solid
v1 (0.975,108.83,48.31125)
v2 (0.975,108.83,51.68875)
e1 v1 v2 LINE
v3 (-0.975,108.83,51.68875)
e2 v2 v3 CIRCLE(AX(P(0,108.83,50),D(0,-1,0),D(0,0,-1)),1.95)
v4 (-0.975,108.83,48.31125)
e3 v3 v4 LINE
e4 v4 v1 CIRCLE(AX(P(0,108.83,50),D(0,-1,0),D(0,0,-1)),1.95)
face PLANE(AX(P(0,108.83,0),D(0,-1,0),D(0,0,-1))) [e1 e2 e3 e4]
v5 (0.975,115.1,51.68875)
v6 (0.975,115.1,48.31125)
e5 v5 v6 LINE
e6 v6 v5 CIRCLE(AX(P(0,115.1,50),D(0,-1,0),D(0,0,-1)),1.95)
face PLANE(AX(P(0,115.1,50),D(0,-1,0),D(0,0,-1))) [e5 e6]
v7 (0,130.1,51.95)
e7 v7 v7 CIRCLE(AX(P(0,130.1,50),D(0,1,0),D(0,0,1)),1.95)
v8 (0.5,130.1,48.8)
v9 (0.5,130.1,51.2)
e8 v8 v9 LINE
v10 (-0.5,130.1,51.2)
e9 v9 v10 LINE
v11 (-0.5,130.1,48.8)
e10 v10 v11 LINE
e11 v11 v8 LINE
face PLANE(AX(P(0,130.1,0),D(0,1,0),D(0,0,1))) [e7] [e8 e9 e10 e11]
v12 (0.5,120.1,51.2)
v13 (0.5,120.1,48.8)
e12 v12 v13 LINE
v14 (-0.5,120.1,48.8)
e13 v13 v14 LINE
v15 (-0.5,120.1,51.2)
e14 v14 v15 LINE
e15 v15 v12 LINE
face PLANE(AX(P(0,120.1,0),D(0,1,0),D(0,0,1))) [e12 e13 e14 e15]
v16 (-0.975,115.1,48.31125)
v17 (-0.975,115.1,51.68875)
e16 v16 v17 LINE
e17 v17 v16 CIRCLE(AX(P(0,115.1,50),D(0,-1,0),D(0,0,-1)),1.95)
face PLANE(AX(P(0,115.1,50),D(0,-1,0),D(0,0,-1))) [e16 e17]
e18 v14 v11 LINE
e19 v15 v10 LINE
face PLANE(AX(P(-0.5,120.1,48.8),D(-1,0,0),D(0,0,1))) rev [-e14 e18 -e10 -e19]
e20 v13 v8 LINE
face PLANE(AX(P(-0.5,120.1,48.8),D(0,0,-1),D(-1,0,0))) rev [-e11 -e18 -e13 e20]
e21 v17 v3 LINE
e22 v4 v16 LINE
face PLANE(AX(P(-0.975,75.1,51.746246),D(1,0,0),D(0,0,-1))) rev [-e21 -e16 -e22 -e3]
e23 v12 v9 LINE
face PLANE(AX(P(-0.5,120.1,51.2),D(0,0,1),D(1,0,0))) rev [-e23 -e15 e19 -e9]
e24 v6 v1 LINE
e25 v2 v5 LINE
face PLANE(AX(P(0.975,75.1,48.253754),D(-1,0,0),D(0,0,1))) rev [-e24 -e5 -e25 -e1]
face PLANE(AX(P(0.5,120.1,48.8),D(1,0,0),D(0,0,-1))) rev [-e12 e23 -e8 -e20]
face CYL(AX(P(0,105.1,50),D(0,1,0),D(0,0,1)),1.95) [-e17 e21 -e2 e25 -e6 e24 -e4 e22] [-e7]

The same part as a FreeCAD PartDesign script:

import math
import FreeCAD as App
import Part
import Sketcher
from FreeCAD import Vector
Q = App.Units.Quantity


def edges_at(feature, points):
    """Names of the edges that pass closest to the given points."""
    edges = feature.Shape.Edges
    near = lambda p: min(range(len(edges)), key=lambda i: edges[i].distToShape(Part.Vertex(*p))[0])
    return sorted({f"Edge{near(p) + 1}" for p in points})


def add_polygon(sketch, points):
    """Adds a closed chain of lines whose ends are joined by coincident constraints."""
    first, n = sketch.GeometryCount, len(points)
    for a, b in zip(points, points[1:] + points[:1]):
        sketch.addGeometry(Part.LineSegment(App.Vector(*a, 0), App.Vector(*b, 0)), False)
    for i in range(n):
        sketch.addConstraint(Sketcher.Constraint("Coincident", first + i, 2, first + (i + 1) % n, 1))

doc = App.newDocument("Part")
body = doc.addObject("PartDesign::Body", "Body")

# Sketch on XZ plane
sketch1 = body.newObject("Sketcher::SketchObject", "Sketch")
sketch1.AttachmentSupport = (doc.getObject("XZ_Plane"), [""])
sketch1.MapMode = "FlatFace"
sketch1.addGeometry(Part.Circle(Vector(0, 0, 0), Vector(0, 0, 1), 30), False)
sketch1.addConstraint([
    Sketcher.Constraint("Coincident", 0, 3, -1, 1),
    Sketcher.Constraint("Diameter", 0, Q("60 mm")),
])
pad1 = body.newObject("PartDesign::Pad", "Pad")
pad1.Profile = sketch1
pad1.Length = 200
pad1.Reversed = True

# Sketch on XZ plane
sketch2 = body.newObject("Sketcher::SketchObject", "Sketch001")
sketch2.AttachmentSupport = (doc.getObject("XZ_Plane"), [""])
sketch2.MapMode = "FlatFace"
sketch2.AttachmentOffset = App.Placement(Vector(0, 0, -200), App.Rotation())
sketch2.addGeometry(Part.Circle(Vector(0, 0, 0), Vector(0, 0, 1), 30), False)
sketch2.addConstraint([
    Sketcher.Constraint("Coincident", 0, 3, -1, 1),
    Sketcher.Constraint("Diameter", 0, Q("60 mm")),
])
pocket1 = body.newObject("PartDesign::Pocket", "Pocket")
pocket1.Profile = sketch2
pocket1.Length = 200
pocket1.Reversed = True
body2 = doc.addObject("PartDesign::Body", "Body001")
body2.AllowCompound = True

# Sketch on XZ plane
sketch3 = body2.newObject("Sketcher::SketchObject", "Sketch002")
sketch3.AttachmentSupport = (doc.getObject("XZ_Plane001"), [""])
sketch3.MapMode = "FlatFace"
sketch3.AttachmentOffset = App.Placement(Vector(0, 0, -140), App.Rotation())
sketch3.addGeometry(Part.Circle(Vector(0, 50, 0), Vector(0, 0, 1), 4), False)
sketch3.addConstraint([
    Sketcher.Constraint("PointOnObject", 0, 3, -2),
    Sketcher.Constraint("Diameter", 0, Q("8 mm")),
    Sketcher.Constraint("DistanceY", -1, 1, 0, 3, Q("50 mm")),
])
pad2 = body2.newObject("PartDesign::Pad", "Pad001")
pad2.Profile = sketch3
pad2.Length = 80

# Sketch on XZ plane
sketch4 = body2.newObject("Sketcher::SketchObject", "Sketch003")
sketch4.AttachmentSupport = (doc.getObject("XZ_Plane001"), [""])
sketch4.MapMode = "FlatFace"
sketch4.AttachmentOffset = App.Placement(Vector(0, 0, -140), App.Rotation())
sketch4.addGeometry([
    Part.LineSegment(Vector(40.9, 0, 0), Vector(-2.9, 47.3, 0)),  # 0
    Part.ArcOfCircle(Part.Circle(Vector(0, 50, 0), Vector(0, 0, 1), 4), math.radians(-137), math.radians(43)),  # 1
    Part.LineSegment(Vector(2.9, 52.7, 0), Vector(51.8, 0, 0)),  # 2
    Part.LineSegment(Vector(51.8, 0, 0), Vector(11.9, -43.1, 0)),  # 3
    Part.LineSegment(Vector(11.9, -43.1, 0), Vector(6, -37.6, 0)),  # 4
    Part.LineSegment(Vector(6, -37.6, 0), Vector(40.9, 0, 0)),  # 5
], False)
sketch4.addConstraint([
    Sketcher.Constraint("Tangent", 0, 2, 1, 1),
    Sketcher.Constraint("Tangent", 1, 2, 2, 1),
    Sketcher.Constraint("Coincident", 2, 2, 3, 1),
    Sketcher.Constraint("Coincident", 3, 2, 4, 1),
    Sketcher.Constraint("Coincident", 4, 2, 5, 1),
    Sketcher.Constraint("Coincident", 5, 2, 0, 1),
    Sketcher.Constraint("PointOnObject", 1, 3, -2),
    Sketcher.Constraint("PointOnObject", 2, 2, -1),
    Sketcher.Constraint("PointOnObject", 5, 2, -1),
    Sketcher.Constraint("Parallel", 0, 2),
    Sketcher.Constraint("Perpendicular", 3, 4),
    Sketcher.Constraint("Perpendicular", 4, 5),
    Sketcher.Constraint("Radius", 1, Q("4 mm")),
    Sketcher.Constraint("Distance", 4, Q("8 mm")),
    Sketcher.Constraint("DistanceY", -1, 1, 1, 3, Q("50 mm")),
    Sketcher.Constraint("DistanceX", -1, 1, 4, 2, Q("6 mm")),
    Sketcher.Constraint("DistanceY", -1, 1, 0, 2, Q("47.28 mm")),
])
pad3 = body2.newObject("PartDesign::Pad", "Pad002")
pad3.Profile = sketch4
pad3.Length = 10

# Sketch on XZ plane
sketch5 = body2.newObject("Sketcher::SketchObject", "Sketch004")
sketch5.AttachmentSupport = (doc.getObject("XZ_Plane001"), [""])
sketch5.MapMode = "FlatFace"
sketch5.AttachmentOffset = App.Placement(Vector(0, 0, -60), App.Rotation())
sketch5.addGeometry([
    Part.LineSegment(Vector(6, -37.6, 0), Vector(11.9, -43.1, 0)),  # 0
    Part.LineSegment(Vector(11.9, -43.1, 0), Vector(51.8, 0, 0)),  # 1
    Part.LineSegment(Vector(51.8, 0, 0), Vector(2.9, 52.7, 0)),  # 2
    Part.ArcOfCircle(Part.Circle(Vector(0, 50, 0), Vector(0, 0, 1), 4), math.radians(-137), math.radians(43)),  # 3
    Part.LineSegment(Vector(-2.9, 47.3, 0), Vector(40.9, 0, 0)),  # 4
    Part.LineSegment(Vector(40.9, 0, 0), Vector(6, -37.6, 0)),  # 5
], False)
sketch5.addConstraint([
    Sketcher.Constraint("Coincident", 0, 2, 1, 1),
    Sketcher.Constraint("Coincident", 1, 2, 2, 1),
    Sketcher.Constraint("Tangent", 2, 2, 3, 2),
    Sketcher.Constraint("Tangent", 3, 1, 4, 1),
    Sketcher.Constraint("Coincident", 4, 2, 5, 1),
    Sketcher.Constraint("Coincident", 5, 2, 0, 1),
    Sketcher.Constraint("PointOnObject", 3, 3, -2),
    Sketcher.Constraint("PointOnObject", 1, 2, -1),
    Sketcher.Constraint("PointOnObject", 4, 2, -1),
    Sketcher.Constraint("Perpendicular", 0, 1),
    Sketcher.Constraint("Parallel", 2, 4),
    Sketcher.Constraint("Parallel", 1, 5),
    Sketcher.Constraint("Radius", 3, Q("4 mm")),
    Sketcher.Constraint("Distance", 0, Q("8 mm")),
    Sketcher.Constraint("DistanceY", -1, 1, 3, 3, Q("50 mm")),
    Sketcher.Constraint("DistanceX", -1, 1, 5, 2, Q("6 mm")),
    Sketcher.Constraint("DistanceY", -1, 1, 2, 2, Q("52.72 mm")),
])
pad4 = body2.newObject("PartDesign::Pad", "Pad003")
pad4.Profile = sketch5
pad4.Length = 10
pad4.Reversed = True
doc.recompute()

fillet = body2.newObject("PartDesign::Fillet", "Fillet")
fillet.Base = (pad4, edges_at(pad4, [
    (40.916, 65, 0),
    (51.827, 65, 0),
    (40.916, 135, 0),
    (51.827, 135, 0),
]))
fillet.Radius = 10
doc.recompute()

fillet2 = body2.newObject("PartDesign::Fillet", "Fillet001")
fillet2.Base = (fillet, edges_at(fillet, [
    (8.933, 140, -40.368),
    (6, 65, -37.648),
    (8.933, 70, -40.368),
    (11.866, 65, -43.088),
    (8.933, 60, -40.368),
    (8.933, 130, -40.368),
    (6, 135, -37.648),
    (11.866, 135, -43.088),
]))
fillet2.Radius = 3

# Sketch on XZ plane
sketch6 = body2.newObject("Sketcher::SketchObject", "Sketch005")
sketch6.AttachmentSupport = (doc.getObject("XZ_Plane001"), [""])
sketch6.MapMode = "FlatFace"
sketch6.AttachmentOffset = App.Placement(Vector(0, 0, -106), App.Rotation())
sketch6.addGeometry(Part.Circle(Vector(0, 50, 0), Vector(0, 0, 1), 4), False)
sketch6.addConstraint([
    Sketcher.Constraint("PointOnObject", 0, 3, -2),
    Sketcher.Constraint("Diameter", 0, Q("8 mm")),
    Sketcher.Constraint("DistanceY", -1, 1, 0, 3, Q("50 mm")),
])
pocket2 = body2.newObject("PartDesign::Pocket", "Pocket001")
pocket2.Profile = sketch6
pocket2.Length = 12
pocket2.Reversed = True

# Sketch on XZ plane
sketch7 = body2.newObject("Sketcher::SketchObject", "Sketch006")
sketch7.AttachmentSupport = (doc.getObject("XZ_Plane001"), [""])
sketch7.MapMode = "FlatFace"
sketch7.AttachmentOffset = App.Placement(Vector(0, 0, -140), App.Rotation())
sketch7.addGeometry(Part.Circle(Vector(0, 50, 0), Vector(0, 0, 1), 2), False)
sketch7.addConstraint([
    Sketcher.Constraint("PointOnObject", 0, 3, -2),
    Sketcher.Constraint("Diameter", 0, Q("4 mm")),
    Sketcher.Constraint("DistanceY", -1, 1, 0, 3, Q("50 mm")),
])
pocket3 = body2.newObject("PartDesign::Pocket", "Pocket002")
pocket3.Profile = sketch7
pocket3.Length = 70
pocket3.Reversed = True

# Sketch on XZ plane
sketch8 = body2.newObject("Sketcher::SketchObject", "Sketch007")
sketch8.AttachmentSupport = (doc.getObject("XZ_Plane001"), [""])
sketch8.MapMode = "FlatFace"
sketch8.AttachmentOffset = App.Placement(Vector(0, 0, -140.1), App.Rotation())
sketch8.addGeometry(Part.Circle(Vector(0, 50, 0), Vector(0, 0, 1), 2), False)
sketch8.addConstraint([
    Sketcher.Constraint("PointOnObject", 0, 3, -2),
    Sketcher.Constraint("Diameter", 0, Q("4 mm")),
    Sketcher.Constraint("DistanceY", -1, 1, 0, 3, Q("50 mm")),
])
pad5 = body2.newObject("PartDesign::Pad", "Pad004")
pad5.Profile = sketch8
pad5.Length = 70

# Sketch on XZ plane
sketch9 = body2.newObject("Sketcher::SketchObject", "Sketch008")
sketch9.AttachmentSupport = (doc.getObject("XZ_Plane001"), [""])
sketch9.MapMode = "FlatFace"
sketch9.AttachmentOffset = App.Placement(Vector(0, 0, -110.1), App.Rotation())
sketch9.addGeometry([
    Part.LineSegment(Vector(-1, 51.7, 0), Vector(-1, 48.3, 0)),
    Part.ArcOfCircle(Part.Circle(Vector(0, 50, 0), Vector(0, 0, 1), 2), math.radians(119), math.radians(241)),
    Part.LineSegment(Vector(1, 48.3, 0), Vector(1, 51.7, 0)),
    Part.ArcOfCircle(Part.Circle(Vector(0, 50, 0), Vector(0, 0, 1), 2), math.radians(-61), math.radians(61)),
], False)
sketch9.addConstraint([
    Sketcher.Constraint("Coincident", 0, 1, 1, 1),
    Sketcher.Constraint("Coincident", 1, 2, 0, 2),
    Sketcher.Constraint("Coincident", 2, 1, 3, 1),
    Sketcher.Constraint("Coincident", 3, 2, 2, 2),
    Sketcher.Constraint("Vertical", 0),
    Sketcher.Constraint("Vertical", 2),
    Sketcher.Constraint("Coincident", 3, 3, 1, 3),
    Sketcher.Constraint("Equal", 1, 3),
    Sketcher.Constraint("Symmetric", 1, 2, 2, 1, -2),
    Sketcher.Constraint("Radius", 1, Q("2 mm")),
    Sketcher.Constraint("DistanceY", -1, 1, 1, 3, Q("50 mm")),
    Sketcher.Constraint("DistanceX", 1, 2, 2, 1, Q("1.95 mm")),
])
pocket4 = body2.newObject("PartDesign::Pocket", "Pocket003")
pocket4.Profile = sketch9
pocket4.Length = 35
pocket4.Reversed = True

# Sketch on XZ plane
sketch10 = body2.newObject("Sketcher::SketchObject", "Sketch009")
sketch10.AttachmentSupport = (doc.getObject("XZ_Plane001"), [""])
sketch10.MapMode = "FlatFace"
sketch10.AttachmentOffset = App.Placement(Vector(0, 0, -140.1), App.Rotation())
add_polygon(sketch10, [(-0.5, 48.8), (-0.5, 51.2), (0.5, 51.2), (0.5, 48.8)])  # lines 0-3
sketch10.addConstraint([
    Sketcher.Constraint("Vertical", 0),
    Sketcher.Constraint("Horizontal", 1),
    Sketcher.Constraint("Vertical", 2),
    Sketcher.Constraint("Horizontal", 3),
    Sketcher.Constraint("DistanceX", 1, 1, 1, 2, Q("1 mm")),
    Sketcher.Constraint("DistanceY", 0, 1, 0, 2, Q("2.4 mm")),
    Sketcher.Constraint("DistanceX", 0, 2, -1, 1, Q("0.5 mm")),
    Sketcher.Constraint("DistanceY", -1, 1, 0, 2, Q("51.2 mm")),
])
pocket5 = body2.newObject("PartDesign::Pocket", "Pocket004")
pocket5.Profile = sketch10
pocket5.Length = 20
pocket5.Reversed = True

# Sketch on XZ plane
sketch11 = body2.newObject("Sketcher::SketchObject", "Sketch010")
sketch11.AttachmentSupport = (doc.getObject("XZ_Plane001"), [""])
sketch11.MapMode = "FlatFace"
sketch11.AttachmentOffset = App.Placement(Vector(0, 0, -140), App.Rotation())
sketch11.addGeometry([
    Part.Circle(Vector(0, 50, 0), Vector(0, 0, 1), 97.7),
    Part.Circle(Vector(0, 50, 0), Vector(0, 0, 1), 2),
], False)
sketch11.addConstraint([
    Sketcher.Constraint("Coincident", 1, 3, 0, 3),
    Sketcher.Constraint("PointOnObject", 0, 3, -2),
    Sketcher.Constraint("Diameter", 1, Q("4 mm")),
    Sketcher.Constraint("DistanceY", -1, 1, 0, 3, Q("50 mm")),
    Sketcher.Constraint("Diameter", 0, Q("195.379171 mm")),
])
pocket6 = body2.newObject("PartDesign::Pocket", "Pocket005")
pocket6.Profile = sketch11
pocket6.Length = 200
pocket6.Reversed = True

# Sketch on YZ plane
sketch12 = body2.newObject("Sketcher::SketchObject", "Sketch011")
sketch12.AttachmentSupport = (doc.getObject("YZ_Plane001"), [""])
sketch12.MapMode = "FlatFace"
sketch12.AttachmentOffset = App.Placement(Vector(0, 0, 0.975), App.Rotation())
add_polygon(sketch12, [(70, 52), (58, 52), (58, 47), (70, 47)])  # lines 0-3
sketch12.addConstraint([
    Sketcher.Constraint("Horizontal", 0),
    Sketcher.Constraint("Vertical", 1),
    Sketcher.Constraint("Horizontal", 2),
    Sketcher.Constraint("Vertical", 3),
    Sketcher.Constraint("DistanceY", -1, 1, 0, 2, Q("52 mm")),
    Sketcher.Constraint("DistanceX", -1, 1, 2, 2, Q("70 mm")),
    Sketcher.Constraint("DistanceX", 0, 2, 0, 1, Q("11.52545 mm")),
    Sketcher.Constraint("DistanceY", 1, 2, 1, 1, Q("5.149469 mm")),
])
pocket7 = body2.newObject("PartDesign::Pocket", "Pocket006")
pocket7.Profile = sketch12
pocket7.Type = "ThroughAll"
pocket7.Midplane = True

# Sketch on YZ plane
sketch13 = body2.newObject("Sketcher::SketchObject", "Sketch012")
sketch13.AttachmentSupport = (doc.getObject("YZ_Plane001"), [""])
sketch13.MapMode = "FlatFace"
sketch13.AttachmentOffset = App.Placement(Vector(0, 0, -0.975), App.Rotation())
add_polygon(sketch13, [(75.1, 48), (70.1, 48), (70.1, 52), (75.1, 52)])  # lines 0-3
sketch13.addConstraint([
    Sketcher.Constraint("Horizontal", 0),
    Sketcher.Constraint("Vertical", 1),
    Sketcher.Constraint("Horizontal", 2),
    Sketcher.Constraint("Vertical", 3),
    Sketcher.Constraint("DistanceX", 0, 2, 0, 1, Q("5 mm")),
    Sketcher.Constraint("DistanceY", 1, 1, 1, 2, Q("4 mm")),
    Sketcher.Constraint("DistanceY", -1, 1, 0, 2, Q("48 mm")),
    Sketcher.Constraint("DistanceX", -1, 1, 0, 2, Q("70.1 mm")),
])
pocket8 = body2.newObject("PartDesign::Pocket", "Pocket007")
pocket8.Profile = sketch13
pocket8.Type = "ThroughAll"
pocket8.Midplane = True

# Sketch on XZ plane
sketch14 = body2.newObject("Sketcher::SketchObject", "Sketch013")
sketch14.AttachmentSupport = (doc.getObject("XZ_Plane001"), [""])
sketch14.MapMode = "FlatFace"
sketch14.AttachmentOffset = App.Placement(Vector(0, 0, -140.1), App.Rotation())
add_polygon(sketch14, [(-6, 41), (-6, 54), (2, 54), (2, 41)])  # lines 0-3
sketch14.addConstraint([
    Sketcher.Constraint("Vertical", 0),
    Sketcher.Constraint("Horizontal", 1),
    Sketcher.Constraint("Vertical", 2),
    Sketcher.Constraint("Horizontal", 3),
    Sketcher.Constraint("DistanceX", -1, 1, 1, 2, Q("2.325498 mm")),
    Sketcher.Constraint("DistanceX", 1, 1, 1, 2, Q("8.073982 mm")),
    Sketcher.Constraint("DistanceY", 0, 1, 0, 2, Q("13.216207 mm")),
    Sketcher.Constraint("DistanceY", -1, 1, 0, 2, Q("54.072603 mm")),
])
pocket9 = body2.newObject("PartDesign::Pocket", "Pocket008")
pocket9.Profile = sketch14
pocket9.Length = 7
pocket9.Reversed = True

# Sketch on XZ plane
sketch15 = body2.newObject("Sketcher::SketchObject", "Sketch014")
sketch15.AttachmentSupport = (doc.getObject("XZ_Plane001"), [""])
sketch15.MapMode = "FlatFace"
sketch15.AttachmentOffset = App.Placement(Vector(0, 0, -133.1), App.Rotation())
add_polygon(sketch15, [(-7, 42), (-7, 59), (10, 59), (10, 42)])  # lines 0-3
sketch15.addConstraint([
    Sketcher.Constraint("Vertical", 0),
    Sketcher.Constraint("Horizontal", 1),
    Sketcher.Constraint("Vertical", 2),
    Sketcher.Constraint("Horizontal", 3),
    Sketcher.Constraint("DistanceX", 1, 1, 1, 2, Q("16.909253 mm")),
    Sketcher.Constraint("DistanceY", 0, 1, 0, 2, Q("17.799093 mm")),
    Sketcher.Constraint("DistanceX", -1, 1, 1, 2, Q("9.812548 mm")),
    Sketcher.Constraint("DistanceY", -1, 1, 2, 2, Q("41.644322 mm")),
])
pocket10 = body2.newObject("PartDesign::Pocket", "Pocket009")
pocket10.Profile = sketch15
pocket10.Length = 3
pocket10.Reversed = True

# Sketch on XZ plane
sketch16 = body2.newObject("Sketcher::SketchObject", "Sketch015")
sketch16.AttachmentSupport = (doc.getObject("XZ_Plane001"), [""])
sketch16.MapMode = "FlatFace"
sketch16.AttachmentOffset = App.Placement(Vector(0, 0, -75.1), App.Rotation())
add_polygon(sketch16, [(-11, 61), (-11, 44), (7, 44), (7, 61)])  # lines 0-3
sketch16.addConstraint([
    Sketcher.Constraint("Vertical", 0),
    Sketcher.Constraint("Horizontal", 1),
    Sketcher.Constraint("Vertical", 2),
    Sketcher.Constraint("Horizontal", 3),
    Sketcher.Constraint("DistanceX", 1, 1, 1, 2, Q("18.708797 mm")),
    Sketcher.Constraint("DistanceY", 0, 2, 0, 1, Q("16.020174 mm")),
    Sketcher.Constraint("DistanceX", 0, 2, -1, 1, Q("11.380984 mm")),
    Sketcher.Constraint("DistanceY", -1, 1, 0, 2, Q("44.493228 mm")),
])
pocket11 = body2.newObject("PartDesign::Pocket", "Pocket010")
pocket11.Profile = sketch16
pocket11.Length = 3

# Sketch on XZ plane
sketch17 = body2.newObject("Sketcher::SketchObject", "Sketch016")
sketch17.AttachmentSupport = (doc.getObject("XZ_Plane001"), [""])
sketch17.MapMode = "FlatFace"
sketch17.AttachmentOffset = App.Placement(Vector(0, 0, -78.1), App.Rotation())
add_polygon(sketch17, [(-4, 53), (-4, 47), (4, 47), (4, 53)])  # lines 0-3
sketch17.addConstraint([
    Sketcher.Constraint("Vertical", 0),
    Sketcher.Constraint("Horizontal", 1),
    Sketcher.Constraint("Vertical", 2),
    Sketcher.Constraint("Horizontal", 3),
    Sketcher.Constraint("DistanceX", 1, 1, 1, 2, Q("8.604904 mm")),
    Sketcher.Constraint("DistanceY", 0, 2, 0, 1, Q("5.934872 mm")),
    Sketcher.Constraint("DistanceX", 0, 2, -1, 1, Q("4.242971 mm")),
    Sketcher.Constraint("DistanceY", -1, 1, 2, 2, Q("53.20536 mm")),
])
pocket12 = body2.newObject("PartDesign::Pocket", "Pocket011")
pocket12.Profile = sketch17
pocket12.Length = 30.73

# Sketch on XZ plane
sketch18 = body2.newObject("Sketcher::SketchObject", "Sketch017")
sketch18.AttachmentSupport = (doc.getObject("XZ_Plane001"), [""])
sketch18.MapMode = "FlatFace"
sketch18.AttachmentOffset = App.Placement(Vector(0, 0, -110.1), App.Rotation())
sketch18.addGeometry([
    Part.LineSegment(Vector(-1, 48.3, 0), Vector(-1, 51.7, 0)),
    Part.ArcOfCircle(Part.Circle(Vector(0, 50, 0), Vector(0, 0, 1), 2), math.radians(119), math.radians(241)),
    Part.LineSegment(Vector(1, 51.7, 0), Vector(1, 48.3, 0)),
    Part.ArcOfCircle(Part.Circle(Vector(0, 50, 0), Vector(0, 0, 1), 2), math.radians(-61), math.radians(61)),
], False)
sketch18.addConstraint([
    Sketcher.Constraint("Coincident", 0, 1, 1, 2),
    Sketcher.Constraint("Coincident", 1, 1, 0, 2),
    Sketcher.Constraint("Coincident", 2, 1, 3, 2),
    Sketcher.Constraint("Coincident", 3, 1, 2, 2),
    Sketcher.Constraint("Vertical", 0),
    Sketcher.Constraint("Vertical", 2),
    Sketcher.Constraint("Coincident", 3, 3, 1, 3),
    Sketcher.Constraint("Equal", 1, 3),
    Sketcher.Constraint("Symmetric", 1, 1, 2, 1, -2),
    Sketcher.Constraint("Radius", 1, Q("2 mm")),
    Sketcher.Constraint("DistanceY", -1, 1, 1, 3, Q("50 mm")),
    Sketcher.Constraint("DistanceX", 1, 1, 2, 1, Q("1.95 mm")),
])
pocket13 = body2.newObject("PartDesign::Pocket", "Pocket012")
pocket13.Profile = sketch18
pocket13.Length = 5

# Sketch on XZ plane
sketch19 = body2.newObject("Sketcher::SketchObject", "Sketch018")
sketch19.AttachmentSupport = (doc.getObject("XZ_Plane001"), [""])
sketch19.MapMode = "FlatFace"
sketch19.AttachmentOffset = App.Placement(Vector(0, 0, -130.1), App.Rotation())
sketch19.addGeometry([
    Part.Circle(Vector(0, 50, 0), Vector(0, 0, 1), 2),
    Part.Circle(Vector(0, 50, 0), Vector(0, 0, 1), 1.9),
], False)
sketch19.addConstraint([
    Sketcher.Constraint("Coincident", 1, 3, 0, 3),
    Sketcher.Constraint("PointOnObject", 0, 3, -2),
    Sketcher.Constraint("Diameter", 0, Q("4 mm")),
    Sketcher.Constraint("Diameter", 1, Q("3.9 mm")),
    Sketcher.Constraint("DistanceY", -1, 1, 0, 3, Q("50 mm")),
])
pocket14 = body2.newObject("PartDesign::Pocket", "Pocket013")
pocket14.Profile = sketch19
pocket14.Length = 25
pocket14.Reversed = True

doc.recompute()
